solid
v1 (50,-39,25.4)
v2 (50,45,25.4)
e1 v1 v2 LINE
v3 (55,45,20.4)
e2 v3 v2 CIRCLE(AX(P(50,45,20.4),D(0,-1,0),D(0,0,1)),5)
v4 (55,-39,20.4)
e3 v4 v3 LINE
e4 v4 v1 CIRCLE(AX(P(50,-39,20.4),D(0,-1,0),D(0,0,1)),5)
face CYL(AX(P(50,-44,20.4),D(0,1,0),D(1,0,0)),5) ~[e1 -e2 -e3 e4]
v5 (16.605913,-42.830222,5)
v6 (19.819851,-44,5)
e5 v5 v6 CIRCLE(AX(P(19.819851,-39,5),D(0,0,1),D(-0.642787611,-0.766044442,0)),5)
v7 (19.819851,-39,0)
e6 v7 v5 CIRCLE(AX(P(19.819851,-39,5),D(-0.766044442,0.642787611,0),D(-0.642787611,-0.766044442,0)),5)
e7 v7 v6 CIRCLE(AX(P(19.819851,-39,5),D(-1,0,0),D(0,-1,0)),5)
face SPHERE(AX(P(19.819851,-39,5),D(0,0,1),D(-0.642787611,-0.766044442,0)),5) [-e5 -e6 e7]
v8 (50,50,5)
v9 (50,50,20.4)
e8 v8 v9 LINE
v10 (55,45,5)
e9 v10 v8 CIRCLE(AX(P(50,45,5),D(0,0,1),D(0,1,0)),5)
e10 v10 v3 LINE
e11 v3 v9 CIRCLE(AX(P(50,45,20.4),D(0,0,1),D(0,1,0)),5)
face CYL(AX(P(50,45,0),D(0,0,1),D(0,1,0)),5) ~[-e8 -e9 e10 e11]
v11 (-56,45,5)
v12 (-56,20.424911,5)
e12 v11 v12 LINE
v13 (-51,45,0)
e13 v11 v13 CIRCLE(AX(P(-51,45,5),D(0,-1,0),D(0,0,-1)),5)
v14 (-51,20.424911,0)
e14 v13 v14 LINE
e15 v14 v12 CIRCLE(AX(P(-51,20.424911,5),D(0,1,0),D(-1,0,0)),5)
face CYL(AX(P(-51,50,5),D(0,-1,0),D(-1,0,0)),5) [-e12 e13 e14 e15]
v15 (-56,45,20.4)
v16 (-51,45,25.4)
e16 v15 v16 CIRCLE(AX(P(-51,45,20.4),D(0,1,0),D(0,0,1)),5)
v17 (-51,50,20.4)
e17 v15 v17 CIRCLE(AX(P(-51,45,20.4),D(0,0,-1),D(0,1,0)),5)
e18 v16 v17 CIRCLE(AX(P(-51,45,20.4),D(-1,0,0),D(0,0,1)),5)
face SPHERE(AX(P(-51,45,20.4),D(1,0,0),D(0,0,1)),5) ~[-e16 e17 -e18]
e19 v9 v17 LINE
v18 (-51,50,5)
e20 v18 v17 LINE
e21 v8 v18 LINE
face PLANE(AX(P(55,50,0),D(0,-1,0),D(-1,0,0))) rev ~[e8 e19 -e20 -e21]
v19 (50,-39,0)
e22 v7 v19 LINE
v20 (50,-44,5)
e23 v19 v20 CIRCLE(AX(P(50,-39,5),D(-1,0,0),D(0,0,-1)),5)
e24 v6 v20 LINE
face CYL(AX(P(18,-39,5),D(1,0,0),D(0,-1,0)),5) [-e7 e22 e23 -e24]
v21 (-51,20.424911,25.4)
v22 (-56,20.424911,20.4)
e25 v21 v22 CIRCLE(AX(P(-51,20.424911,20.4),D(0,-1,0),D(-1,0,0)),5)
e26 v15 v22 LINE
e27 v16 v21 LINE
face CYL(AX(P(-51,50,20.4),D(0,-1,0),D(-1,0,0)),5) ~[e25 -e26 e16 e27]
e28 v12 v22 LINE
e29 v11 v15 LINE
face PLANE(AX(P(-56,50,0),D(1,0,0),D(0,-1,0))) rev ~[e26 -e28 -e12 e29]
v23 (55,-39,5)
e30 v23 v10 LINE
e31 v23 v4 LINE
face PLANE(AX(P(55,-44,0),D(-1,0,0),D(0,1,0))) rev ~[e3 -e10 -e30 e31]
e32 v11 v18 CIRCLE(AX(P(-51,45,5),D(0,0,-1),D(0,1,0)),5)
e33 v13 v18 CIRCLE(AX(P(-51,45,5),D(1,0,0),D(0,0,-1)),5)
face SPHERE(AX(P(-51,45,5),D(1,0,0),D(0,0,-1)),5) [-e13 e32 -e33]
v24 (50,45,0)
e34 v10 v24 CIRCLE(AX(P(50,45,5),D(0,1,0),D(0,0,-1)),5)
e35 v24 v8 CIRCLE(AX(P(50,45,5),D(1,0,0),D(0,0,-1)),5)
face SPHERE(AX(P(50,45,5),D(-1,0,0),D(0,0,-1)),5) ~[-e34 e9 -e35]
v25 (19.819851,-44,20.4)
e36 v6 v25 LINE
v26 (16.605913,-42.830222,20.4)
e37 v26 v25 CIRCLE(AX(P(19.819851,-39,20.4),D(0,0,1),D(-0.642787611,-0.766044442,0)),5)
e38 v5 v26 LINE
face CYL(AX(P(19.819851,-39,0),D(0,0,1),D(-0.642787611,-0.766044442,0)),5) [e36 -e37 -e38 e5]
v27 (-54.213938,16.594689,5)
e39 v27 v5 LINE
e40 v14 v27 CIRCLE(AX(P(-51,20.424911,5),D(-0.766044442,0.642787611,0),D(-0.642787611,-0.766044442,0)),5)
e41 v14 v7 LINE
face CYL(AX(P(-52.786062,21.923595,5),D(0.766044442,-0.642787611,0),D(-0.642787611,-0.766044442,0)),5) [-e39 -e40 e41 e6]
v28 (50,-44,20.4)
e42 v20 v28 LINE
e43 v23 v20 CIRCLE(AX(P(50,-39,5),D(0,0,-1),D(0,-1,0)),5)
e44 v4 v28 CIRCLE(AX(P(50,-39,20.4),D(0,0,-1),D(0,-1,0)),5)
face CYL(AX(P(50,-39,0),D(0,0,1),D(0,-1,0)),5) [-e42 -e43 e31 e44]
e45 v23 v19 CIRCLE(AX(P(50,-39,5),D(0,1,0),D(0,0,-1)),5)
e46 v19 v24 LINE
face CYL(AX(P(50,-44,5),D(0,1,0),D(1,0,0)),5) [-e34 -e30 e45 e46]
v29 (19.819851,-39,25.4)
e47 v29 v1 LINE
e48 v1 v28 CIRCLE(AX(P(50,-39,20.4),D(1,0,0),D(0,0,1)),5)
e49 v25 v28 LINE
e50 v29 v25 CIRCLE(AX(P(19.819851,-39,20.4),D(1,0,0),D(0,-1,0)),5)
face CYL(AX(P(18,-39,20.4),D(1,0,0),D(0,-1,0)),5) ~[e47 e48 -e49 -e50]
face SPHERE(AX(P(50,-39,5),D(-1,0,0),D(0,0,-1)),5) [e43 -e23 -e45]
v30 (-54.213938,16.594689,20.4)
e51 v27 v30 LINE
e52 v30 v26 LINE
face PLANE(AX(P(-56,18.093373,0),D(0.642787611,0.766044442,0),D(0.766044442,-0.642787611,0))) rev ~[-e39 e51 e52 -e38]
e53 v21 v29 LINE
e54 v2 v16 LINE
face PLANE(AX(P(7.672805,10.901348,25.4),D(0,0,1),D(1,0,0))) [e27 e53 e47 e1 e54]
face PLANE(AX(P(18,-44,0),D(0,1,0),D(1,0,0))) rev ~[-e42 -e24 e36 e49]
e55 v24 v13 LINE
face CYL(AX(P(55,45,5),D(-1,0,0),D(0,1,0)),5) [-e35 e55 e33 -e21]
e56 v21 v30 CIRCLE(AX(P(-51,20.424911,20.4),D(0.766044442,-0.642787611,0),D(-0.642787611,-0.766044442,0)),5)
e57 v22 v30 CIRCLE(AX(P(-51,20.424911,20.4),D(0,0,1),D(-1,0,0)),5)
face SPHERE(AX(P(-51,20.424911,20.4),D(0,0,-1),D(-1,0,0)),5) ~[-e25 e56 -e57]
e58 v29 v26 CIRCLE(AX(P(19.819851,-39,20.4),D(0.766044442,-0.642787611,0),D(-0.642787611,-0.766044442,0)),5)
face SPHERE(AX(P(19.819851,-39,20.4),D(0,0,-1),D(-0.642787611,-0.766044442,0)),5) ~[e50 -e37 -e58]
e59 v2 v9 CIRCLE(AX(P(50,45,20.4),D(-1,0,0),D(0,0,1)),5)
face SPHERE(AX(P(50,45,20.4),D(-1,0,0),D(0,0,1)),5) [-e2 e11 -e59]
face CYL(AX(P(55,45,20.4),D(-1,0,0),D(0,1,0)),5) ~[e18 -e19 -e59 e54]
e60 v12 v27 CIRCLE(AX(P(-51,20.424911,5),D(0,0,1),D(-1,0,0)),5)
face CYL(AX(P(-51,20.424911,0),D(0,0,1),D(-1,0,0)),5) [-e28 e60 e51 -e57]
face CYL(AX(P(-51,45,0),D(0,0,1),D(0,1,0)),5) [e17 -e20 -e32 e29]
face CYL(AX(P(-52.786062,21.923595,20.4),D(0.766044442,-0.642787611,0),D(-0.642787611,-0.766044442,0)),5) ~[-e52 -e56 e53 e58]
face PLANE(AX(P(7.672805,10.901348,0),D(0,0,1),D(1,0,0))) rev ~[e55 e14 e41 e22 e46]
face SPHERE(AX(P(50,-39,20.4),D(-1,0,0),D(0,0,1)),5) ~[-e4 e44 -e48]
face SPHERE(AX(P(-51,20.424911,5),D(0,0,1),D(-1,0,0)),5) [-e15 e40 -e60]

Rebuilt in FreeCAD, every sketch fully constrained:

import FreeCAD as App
import Part
import Sketcher
from FreeCAD import Vector
Q = App.Units.Quantity


def add_polygon(sketch, points):
    """Adds a closed chain of lines whose ends are joined by coincident constraints."""
    first, n = sketch.GeometryCount, len(points)
    for a, b in zip(points, points[1:] + points[:1]):
        sketch.addGeometry(Part.LineSegment(App.Vector(*a, 0), App.Vector(*b, 0)), False)
    for i in range(n):
        sketch.addConstraint(Sketcher.Constraint("Coincident", first + i, 2, first + (i + 1) % n, 1))

doc = App.newDocument("Part")
params = doc.addObject("Spreadsheet::Sheet", "Params")
for row, (alias, value) in enumerate([
    ("sketch1_width", "111 mm"),
    ("sketch1_width2", "37 mm"),
    ("sketch1_height", "94 mm"),
    ("pad1_length", "25.4 mm"),
    ("fillet_radius", "5 mm"),
], start=1):
    params.set(f"A{row}", alias)
    params.set(f"B{row}", "=" + value)
    params.setAlias(f"B{row}", alias)

body = doc.addObject("PartDesign::Body", "Body")

sketch1 = doc.addObject("Sketcher::SketchObject", "Sketch")
body.addObject(sketch1)
sketch1.AttachmentSupport = (doc.XY_Plane, [""])
sketch1.MapMode = "FlatFace"
add_polygon(sketch1, [(55, 50), (-56, 50), (-56, 18.093373), (18, -44), (55, -44)])
sketch1.addConstraint(Sketcher.Constraint("Horizontal", 0))
sketch1.addConstraint(Sketcher.Constraint("Vertical", 1))
sketch1.addConstraint(Sketcher.Constraint("Horizontal", 3))
sketch1.addConstraint(Sketcher.Constraint("Vertical", 4))
sketch1.addConstraint(Sketcher.Constraint("DistanceX", 0, 2, 0, 1, Q("111 mm")))
sketch1.addConstraint(Sketcher.Constraint("DistanceX", 3, 1, 3, 2, Q("37 mm")))
sketch1.addConstraint(Sketcher.Constraint("DistanceY", 4, 1, 4, 2, Q("94 mm")))
sketch1.addConstraint(Sketcher.Constraint("Angle", 2, Q("-40 deg")))
sketch1.addConstraint(Sketcher.Constraint("DistanceX", 0, 2, -1, 1, Q("56 mm")))
sketch1.addConstraint(Sketcher.Constraint("DistanceY", -1, 1, 0, 2, Q("50 mm")))
sketch1.setExpression("Constraints[9]", "Params.sketch1_width")
sketch1.setExpression("Constraints[10]", "Params.sketch1_width2")
sketch1.setExpression("Constraints[11]", "Params.sketch1_height")
pad1 = doc.addObject("PartDesign::Pad", "Pad")
body.addObject(pad1)
pad1.Profile = sketch1
pad1.setExpression("Length", "Params.pad1_length")
doc.recompute()

fillet = doc.addObject("PartDesign::Fillet", "Fillet")
body.addObject(fillet)
fillet.Base = (pad1, ["Edge1"])
fillet.UseAllEdges = True
fillet.setExpression("Radius", "Params.fillet_radius")

doc.recompute()
